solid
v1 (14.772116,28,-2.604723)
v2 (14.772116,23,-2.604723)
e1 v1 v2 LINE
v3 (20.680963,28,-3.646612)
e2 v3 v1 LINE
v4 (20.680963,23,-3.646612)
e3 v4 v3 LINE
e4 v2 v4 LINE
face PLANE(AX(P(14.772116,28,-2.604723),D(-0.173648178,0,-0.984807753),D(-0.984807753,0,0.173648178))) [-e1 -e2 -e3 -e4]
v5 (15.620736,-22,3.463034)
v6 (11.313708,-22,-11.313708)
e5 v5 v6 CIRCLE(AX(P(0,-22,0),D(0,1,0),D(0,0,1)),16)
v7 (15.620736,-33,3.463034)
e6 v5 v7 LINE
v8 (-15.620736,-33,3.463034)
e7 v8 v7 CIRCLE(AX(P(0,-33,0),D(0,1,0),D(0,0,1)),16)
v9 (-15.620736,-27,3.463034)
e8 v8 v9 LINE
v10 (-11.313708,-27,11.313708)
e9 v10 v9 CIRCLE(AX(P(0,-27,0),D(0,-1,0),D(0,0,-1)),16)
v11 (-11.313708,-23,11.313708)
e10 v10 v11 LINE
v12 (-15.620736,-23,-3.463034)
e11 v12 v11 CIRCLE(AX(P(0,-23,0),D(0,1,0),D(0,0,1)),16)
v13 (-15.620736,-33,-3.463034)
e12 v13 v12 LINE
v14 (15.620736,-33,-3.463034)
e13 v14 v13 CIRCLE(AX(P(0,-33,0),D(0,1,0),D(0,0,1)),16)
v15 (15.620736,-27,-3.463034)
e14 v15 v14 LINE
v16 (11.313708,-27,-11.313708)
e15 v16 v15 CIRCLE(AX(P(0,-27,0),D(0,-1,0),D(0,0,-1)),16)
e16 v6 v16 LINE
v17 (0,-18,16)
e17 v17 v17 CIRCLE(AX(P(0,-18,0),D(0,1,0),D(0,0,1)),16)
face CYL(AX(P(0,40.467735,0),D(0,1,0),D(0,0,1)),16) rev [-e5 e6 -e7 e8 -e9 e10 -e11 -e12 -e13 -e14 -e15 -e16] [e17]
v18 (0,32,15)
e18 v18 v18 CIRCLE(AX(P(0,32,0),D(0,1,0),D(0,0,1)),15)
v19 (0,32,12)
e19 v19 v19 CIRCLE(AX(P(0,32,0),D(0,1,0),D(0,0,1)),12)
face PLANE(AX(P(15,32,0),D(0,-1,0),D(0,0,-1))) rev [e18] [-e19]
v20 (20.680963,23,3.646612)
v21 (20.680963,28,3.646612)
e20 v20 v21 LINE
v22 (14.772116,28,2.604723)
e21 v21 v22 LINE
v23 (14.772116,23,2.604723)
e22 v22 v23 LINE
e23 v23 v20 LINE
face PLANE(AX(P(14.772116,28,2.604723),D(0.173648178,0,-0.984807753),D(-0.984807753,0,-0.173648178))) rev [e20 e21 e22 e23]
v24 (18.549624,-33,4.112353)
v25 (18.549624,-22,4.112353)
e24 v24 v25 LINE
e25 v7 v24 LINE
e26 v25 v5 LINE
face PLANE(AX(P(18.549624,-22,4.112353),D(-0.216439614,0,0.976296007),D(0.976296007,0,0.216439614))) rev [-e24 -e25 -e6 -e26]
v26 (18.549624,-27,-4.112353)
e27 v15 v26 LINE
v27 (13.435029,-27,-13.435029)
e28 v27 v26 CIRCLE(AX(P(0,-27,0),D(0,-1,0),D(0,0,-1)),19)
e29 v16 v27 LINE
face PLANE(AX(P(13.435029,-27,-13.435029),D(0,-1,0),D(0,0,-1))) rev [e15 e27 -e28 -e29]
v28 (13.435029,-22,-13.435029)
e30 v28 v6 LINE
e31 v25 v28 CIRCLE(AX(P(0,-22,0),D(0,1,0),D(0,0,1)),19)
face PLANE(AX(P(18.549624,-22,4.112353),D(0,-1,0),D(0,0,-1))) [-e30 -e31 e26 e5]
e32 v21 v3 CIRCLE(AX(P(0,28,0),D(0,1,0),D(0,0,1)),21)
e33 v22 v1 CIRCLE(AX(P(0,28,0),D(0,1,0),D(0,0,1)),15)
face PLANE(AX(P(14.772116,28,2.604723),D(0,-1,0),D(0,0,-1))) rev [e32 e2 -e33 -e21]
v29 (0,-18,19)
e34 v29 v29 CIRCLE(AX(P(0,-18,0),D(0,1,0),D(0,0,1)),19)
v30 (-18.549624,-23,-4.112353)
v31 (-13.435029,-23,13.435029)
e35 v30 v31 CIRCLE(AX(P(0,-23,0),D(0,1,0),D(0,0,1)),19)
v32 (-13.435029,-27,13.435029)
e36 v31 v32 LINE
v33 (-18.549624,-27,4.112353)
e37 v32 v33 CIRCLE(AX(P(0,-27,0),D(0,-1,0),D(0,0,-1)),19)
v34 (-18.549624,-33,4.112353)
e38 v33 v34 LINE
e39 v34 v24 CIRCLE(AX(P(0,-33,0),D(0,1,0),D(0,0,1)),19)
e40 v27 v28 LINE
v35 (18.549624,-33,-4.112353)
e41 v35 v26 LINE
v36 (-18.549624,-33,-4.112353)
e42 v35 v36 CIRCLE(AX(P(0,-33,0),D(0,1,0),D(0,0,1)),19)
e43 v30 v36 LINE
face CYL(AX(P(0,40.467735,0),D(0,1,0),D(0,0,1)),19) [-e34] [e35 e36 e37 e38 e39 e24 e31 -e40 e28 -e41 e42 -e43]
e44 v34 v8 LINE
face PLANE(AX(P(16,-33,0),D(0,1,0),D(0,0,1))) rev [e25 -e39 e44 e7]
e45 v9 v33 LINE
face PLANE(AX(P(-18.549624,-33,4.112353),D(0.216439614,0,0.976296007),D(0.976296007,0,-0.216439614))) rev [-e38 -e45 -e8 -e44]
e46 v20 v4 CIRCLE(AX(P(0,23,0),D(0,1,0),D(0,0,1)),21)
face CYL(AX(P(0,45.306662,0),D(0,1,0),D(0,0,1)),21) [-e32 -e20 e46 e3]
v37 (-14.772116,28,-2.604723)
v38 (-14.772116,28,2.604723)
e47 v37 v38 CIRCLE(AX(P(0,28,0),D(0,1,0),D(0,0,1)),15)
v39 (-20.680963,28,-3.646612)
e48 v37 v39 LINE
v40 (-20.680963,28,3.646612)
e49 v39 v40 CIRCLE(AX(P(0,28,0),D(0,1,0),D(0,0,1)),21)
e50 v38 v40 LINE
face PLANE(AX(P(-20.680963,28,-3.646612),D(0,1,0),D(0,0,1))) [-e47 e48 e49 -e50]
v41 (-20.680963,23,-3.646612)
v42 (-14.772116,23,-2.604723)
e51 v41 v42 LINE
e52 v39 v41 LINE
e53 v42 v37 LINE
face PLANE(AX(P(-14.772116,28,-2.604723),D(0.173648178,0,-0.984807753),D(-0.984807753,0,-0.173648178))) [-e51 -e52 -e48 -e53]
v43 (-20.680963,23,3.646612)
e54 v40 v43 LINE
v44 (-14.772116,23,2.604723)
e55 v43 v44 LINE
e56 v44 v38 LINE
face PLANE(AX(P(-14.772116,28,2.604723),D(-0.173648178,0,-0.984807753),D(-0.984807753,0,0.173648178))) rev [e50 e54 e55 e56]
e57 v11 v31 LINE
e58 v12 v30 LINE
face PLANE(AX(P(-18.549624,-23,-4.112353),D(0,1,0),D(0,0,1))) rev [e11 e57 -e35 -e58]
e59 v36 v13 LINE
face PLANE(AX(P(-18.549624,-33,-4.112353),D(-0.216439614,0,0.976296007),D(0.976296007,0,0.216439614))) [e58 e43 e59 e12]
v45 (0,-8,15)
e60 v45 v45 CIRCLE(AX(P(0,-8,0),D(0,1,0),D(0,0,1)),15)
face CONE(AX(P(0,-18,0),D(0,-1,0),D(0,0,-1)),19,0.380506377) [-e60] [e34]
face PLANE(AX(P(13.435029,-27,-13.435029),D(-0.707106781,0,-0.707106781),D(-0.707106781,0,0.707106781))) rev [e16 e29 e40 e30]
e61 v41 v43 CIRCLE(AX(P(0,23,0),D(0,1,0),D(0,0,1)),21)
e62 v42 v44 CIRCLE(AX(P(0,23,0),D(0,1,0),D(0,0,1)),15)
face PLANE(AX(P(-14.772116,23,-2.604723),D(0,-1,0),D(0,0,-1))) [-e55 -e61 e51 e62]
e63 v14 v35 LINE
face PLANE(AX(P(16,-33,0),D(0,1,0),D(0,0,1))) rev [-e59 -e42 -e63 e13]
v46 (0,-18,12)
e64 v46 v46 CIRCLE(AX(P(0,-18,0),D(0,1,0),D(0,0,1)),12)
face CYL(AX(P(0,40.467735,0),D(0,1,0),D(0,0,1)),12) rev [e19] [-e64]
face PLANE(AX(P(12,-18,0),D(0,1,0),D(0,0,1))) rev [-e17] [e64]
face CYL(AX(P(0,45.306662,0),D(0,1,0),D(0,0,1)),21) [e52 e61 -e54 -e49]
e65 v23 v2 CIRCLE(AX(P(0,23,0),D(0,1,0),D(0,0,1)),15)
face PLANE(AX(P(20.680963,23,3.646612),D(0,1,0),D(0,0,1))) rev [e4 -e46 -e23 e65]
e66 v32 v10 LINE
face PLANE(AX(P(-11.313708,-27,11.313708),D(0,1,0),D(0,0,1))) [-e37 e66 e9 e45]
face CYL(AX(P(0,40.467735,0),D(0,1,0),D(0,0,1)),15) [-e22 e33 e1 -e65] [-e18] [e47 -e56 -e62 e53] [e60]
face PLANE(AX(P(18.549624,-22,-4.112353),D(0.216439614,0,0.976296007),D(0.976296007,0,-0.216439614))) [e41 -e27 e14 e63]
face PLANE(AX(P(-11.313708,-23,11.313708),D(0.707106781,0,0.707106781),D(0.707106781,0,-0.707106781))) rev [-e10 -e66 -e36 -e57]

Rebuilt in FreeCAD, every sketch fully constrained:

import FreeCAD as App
import Part
import Sketcher

doc = App.newDocument("Part")
body = doc.addObject("PartDesign::Body", "Body")

# Sketch on XY plane
sketch1 = doc.addObject("Sketcher::SketchObject", "Sketch")
body.addObject(sketch1)
sketch1.AttachmentSupport = (doc.XY_Plane, [""])
sketch1.MapMode = "FlatFace"
sketch1.addGeometry([
    Part.LineSegment(App.Vector(12, 32, 0), App.Vector(12, -18, 0)),  # 0
    Part.LineSegment(App.Vector(12, -18, 0), App.Vector(16, -18, 0)),  # 1
    Part.LineSegment(App.Vector(16, -18, 0), App.Vector(16, -33, 0)),  # 2
    Part.LineSegment(App.Vector(16, -33, 0), App.Vector(19, -33, 0)),  # 3
    Part.LineSegment(App.Vector(19, -33, 0), App.Vector(19, -18, 0)),  # 4
    Part.LineSegment(App.Vector(19, -18, 0), App.Vector(15, -8, 0)),  # 5
    Part.LineSegment(App.Vector(15, -8, 0), App.Vector(15, 32, 0)),  # 6
    Part.LineSegment(App.Vector(15, 32, 0), App.Vector(12, 32, 0)),  # 7
], False)
sketch1.addConstraint([
    Sketcher.Constraint("Coincident", 0, 2, 1, 1),
    Sketcher.Constraint("Coincident", 1, 2, 2, 1),
    Sketcher.Constraint("Coincident", 2, 2, 3, 1),
    Sketcher.Constraint("Coincident", 3, 2, 4, 1),
    Sketcher.Constraint("Coincident", 4, 2, 5, 1),
    Sketcher.Constraint("Coincident", 5, 2, 6, 1),
    Sketcher.Constraint("Coincident", 6, 2, 7, 1),
    Sketcher.Constraint("Coincident", 7, 2, 0, 1),
    Sketcher.Constraint("Vertical", 0),
    Sketcher.Constraint("Horizontal", 1),
    Sketcher.Constraint("Vertical", 2),
    Sketcher.Constraint("Horizontal", 3),
    Sketcher.Constraint("Vertical", 4),
    Sketcher.Constraint("Vertical", 6),
    Sketcher.Constraint("Horizontal", 7),
    Sketcher.Constraint("Horizontal", 1, 2, 4, 2),
    Sketcher.Constraint("Equal", 3, 7),
    Sketcher.Constraint("DistanceX", 1, 1, 1, 2, 4.0),
    Sketcher.Constraint("DistanceX", 3, 1, 3, 2, 3.0),
    Sketcher.Constraint("DistanceY", 0, 2, 0, 1, 50.0),
    Sketcher.Constraint("DistanceY", 2, 2, 2, 1, 15.0),
    Sketcher.Constraint("DistanceY", 6, 1, 6, 2, 40.0),
    Sketcher.Constraint("DistanceX", -1, 1, 0, 2, 12.0),
    Sketcher.Constraint("DistanceY", 0, 2, -1, 1, 18.0),
])
revolution = doc.addObject("PartDesign::Revolution", "Revolution")
body.addObject(revolution)
revolution.Profile = sketch1
revolution.ReferenceAxis = (sketch1, ["V_Axis"])
revolution.Angle = 360

# Sketch on XY plane
sketch2 = doc.addObject("Sketcher::SketchObject", "Sketch001")
body.addObject(sketch2)
sketch2.AttachmentSupport = (doc.XY_Plane, [""])
sketch2.MapMode = "FlatFace"
sketch2.addGeometry([
    Part.LineSegment(App.Vector(15, 28, 0), App.Vector(15, 23, 0)),  # 0
    Part.LineSegment(App.Vector(15, 23, 0), App.Vector(21, 23, 0)),  # 1
    Part.LineSegment(App.Vector(21, 23, 0), App.Vector(21, 28, 0)),  # 2
    Part.LineSegment(App.Vector(21, 28, 0), App.Vector(15, 28, 0)),  # 3
    Part.LineSegment(App.Vector(-21, 28, 0), App.Vector(-21, 23, 0)),  # 4
    Part.LineSegment(App.Vector(-21, 23, 0), App.Vector(-15, 23, 0)),  # 5
    Part.LineSegment(App.Vector(-15, 23, 0), App.Vector(-15, 28, 0)),  # 6
    Part.LineSegment(App.Vector(-15, 28, 0), App.Vector(-21, 28, 0)),  # 7
], False)
sketch2.addConstraint([
    Sketcher.Constraint("Coincident", 0, 2, 1, 1),
    Sketcher.Constraint("Coincident", 1, 2, 2, 1),
    Sketcher.Constraint("Coincident", 2, 2, 3, 1),
    Sketcher.Constraint("Coincident", 3, 2, 0, 1),
    Sketcher.Constraint("Coincident", 4, 2, 5, 1),
    Sketcher.Constraint("Coincident", 5, 2, 6, 1),
    Sketcher.Constraint("Coincident", 6, 2, 7, 1),
    Sketcher.Constraint("Coincident", 7, 2, 4, 1),
    Sketcher.Constraint("Vertical", 0),
    Sketcher.Constraint("Horizontal", 1),
    Sketcher.Constraint("Vertical", 2),
    Sketcher.Constraint("Horizontal", 3),
    Sketcher.Constraint("Vertical", 4),
    Sketcher.Constraint("Horizontal", 5),
    Sketcher.Constraint("Vertical", 6),
    Sketcher.Constraint("Horizontal", 7),
    Sketcher.Constraint("Symmetric", 1, 2, 4, 2, -2),
    Sketcher.Constraint("Symmetric", 3, 2, 6, 2, -2),
    Sketcher.Constraint("DistanceX", 1, 1, 1, 2, 6.0),
    Sketcher.Constraint("DistanceY", 0, 2, 0, 1, 5.0),
    Sketcher.Constraint("DistanceX", -1, 1, 0, 2, 15.0),
    Sketcher.Constraint("DistanceY", -1, 1, 0, 2, 23.0),
])
revolution2 = doc.addObject("PartDesign::Revolution", "Revolution001")
body.addObject(revolution2)
revolution2.Profile = sketch2
revolution2.ReferenceAxis = (sketch2, ["V_Axis"])
revolution2.Angle = 10
revolution2.Reversed = True

# Sketch on XY plane
sketch3 = doc.addObject("Sketcher::SketchObject", "Sketch002")
body.addObject(sketch3)
sketch3.AttachmentSupport = (doc.XY_Plane, [""])
sketch3.MapMode = "FlatFace"
sketch3.addGeometry([
    Part.LineSegment(App.Vector(15, 28, 0), App.Vector(15, 23, 0)),  # 0
    Part.LineSegment(App.Vector(15, 23, 0), App.Vector(21, 23, 0)),  # 1
    Part.LineSegment(App.Vector(21, 23, 0), App.Vector(21, 28, 0)),  # 2
    Part.LineSegment(App.Vector(21, 28, 0), App.Vector(15, 28, 0)),  # 3
    Part.LineSegment(App.Vector(-21, 28, 0), App.Vector(-21, 23, 0)),  # 4
    Part.LineSegment(App.Vector(-21, 23, 0), App.Vector(-15, 23, 0)),  # 5
    Part.LineSegment(App.Vector(-15, 23, 0), App.Vector(-15, 28, 0)),  # 6
    Part.LineSegment(App.Vector(-15, 28, 0), App.Vector(-21, 28, 0)),  # 7
], False)
sketch3.addConstraint([
    Sketcher.Constraint("Coincident", 0, 2, 1, 1),
    Sketcher.Constraint("Coincident", 1, 2, 2, 1),
    Sketcher.Constraint("Coincident", 2, 2, 3, 1),
    Sketcher.Constraint("Coincident", 3, 2, 0, 1),
    Sketcher.Constraint("Coincident", 4, 2, 5, 1),
    Sketcher.Constraint("Coincident", 5, 2, 6, 1),
    Sketcher.Constraint("Coincident", 6, 2, 7, 1),
    Sketcher.Constraint("Coincident", 7, 2, 4, 1),
    Sketcher.Constraint("Vertical", 0),
    Sketcher.Constraint("Horizontal", 1),
    Sketcher.Constraint("Vertical", 2),
    Sketcher.Constraint("Horizontal", 3),
    Sketcher.Constraint("Vertical", 4),
    Sketcher.Constraint("Horizontal", 5),
    Sketcher.Constraint("Vertical", 6),
    Sketcher.Constraint("Horizontal", 7),
    Sketcher.Constraint("Symmetric", 1, 2, 4, 2, -2),
    Sketcher.Constraint("Symmetric", 3, 2, 6, 2, -2),
    Sketcher.Constraint("DistanceX", 1, 1, 1, 2, 6.0),
    Sketcher.Constraint("DistanceY", 0, 2, 0, 1, 5.0),
    Sketcher.Constraint("DistanceX", -1, 1, 0, 2, 15.0),
    Sketcher.Constraint("DistanceY", -1, 1, 0, 2, 23.0),
])
revolution3 = doc.addObject("PartDesign::Revolution", "Revolution002")
body.addObject(revolution3)
revolution3.Profile = sketch3
revolution3.ReferenceAxis = (sketch3, ["V_Axis"])
revolution3.Angle = 10

# Sketch on XY plane
sketch4 = doc.addObject("Sketcher::SketchObject", "Sketch003")
body.addObject(sketch4)
sketch4.AttachmentSupport = (doc.XY_Plane, [""])
sketch4.MapMode = "FlatFace"
sketch4.addGeometry([
    Part.LineSegment(App.Vector(-19, -23, 0), App.Vector(-19, -33, 0)),  # 0
    Part.LineSegment(App.Vector(-19, -33, 0), App.Vector(-16, -33, 0)),  # 1
    Part.LineSegment(App.Vector(-16, -33, 0), App.Vector(-16, -23, 0)),  # 2
    Part.LineSegment(App.Vector(-16, -23, 0), App.Vector(-19, -23, 0)),  # 3
    Part.LineSegment(App.Vector(16, -22, 0), App.Vector(16, -33, 0)),  # 4
    Part.LineSegment(App.Vector(16, -33, 0), App.Vector(19, -33, 0)),  # 5
    Part.LineSegment(App.Vector(19, -33, 0), App.Vector(19, -22, 0)),  # 6
    Part.LineSegment(App.Vector(19, -22, 0), App.Vector(16, -22, 0)),  # 7
], False)
sketch4.addConstraint([
    Sketcher.Constraint("Coincident", 0, 2, 1, 1),
    Sketcher.Constraint("Coincident", 1, 2, 2, 1),
    Sketcher.Constraint("Coincident", 2, 2, 3, 1),
    Sketcher.Constraint("Coincident", 3, 2, 0, 1),
    Sketcher.Constraint("Coincident", 4, 2, 5, 1),
    Sketcher.Constraint("Coincident", 5, 2, 6, 1),
    Sketcher.Constraint("Coincident", 6, 2, 7, 1),
    Sketcher.Constraint("Coincident", 7, 2, 4, 1),
    Sketcher.Constraint("Vertical", 0),
    Sketcher.Constraint("Horizontal", 1),
    Sketcher.Constraint("Vertical", 2),
    Sketcher.Constraint("Horizontal", 3),
    Sketcher.Constraint("Vertical", 4),
    Sketcher.Constraint("Horizontal", 5),
    Sketcher.Constraint("Vertical", 6),
    Sketcher.Constraint("Horizontal", 7),
    Sketcher.Constraint("Symmetric", 1, 2, 4, 2, -2),
    Sketcher.Constraint("Equal", 3, 5),
    Sketcher.Constraint("DistanceX", 1, 1, 1, 2, 3.0),
    Sketcher.Constraint("DistanceY", 0, 2, 0, 1, 10.0),
    Sketcher.Constraint("DistanceY", 4, 2, 4, 1, 11.0),
    Sketcher.Constraint("DistanceX", 0, 2, -1, 1, 19.0),
    Sketcher.Constraint("DistanceY", 0, 2, -1, 1, 33.0),
])
groove = doc.addObject("PartDesign::Groove", "Groove")
body.addObject(groove)
groove.Profile = sketch4
groove.ReferenceAxis = (sketch4, ["V_Axis"])
groove.Angle = 12.5
groove.Reversed = True

# Sketch on XY plane
sketch5 = doc.addObject("Sketcher::SketchObject", "Sketch004")
body.addObject(sketch5)
sketch5.AttachmentSupport = (doc.XY_Plane, [""])
sketch5.MapMode = "FlatFace"
sketch5.addGeometry([
    Part.LineSegment(App.Vector(-19, -23, 0), App.Vector(-19, -33, 0)),  # 0
    Part.LineSegment(App.Vector(-19, -33, 0), App.Vector(-16, -33, 0)),  # 1
    Part.LineSegment(App.Vector(-16, -33, 0), App.Vector(-16, -23, 0)),  # 2
    Part.LineSegment(App.Vector(-16, -23, 0), App.Vector(-19, -23, 0)),  # 3
    Part.LineSegment(App.Vector(16, -22, 0), App.Vector(16, -33, 0)),  # 4
    Part.LineSegment(App.Vector(16, -33, 0), App.Vector(19, -33, 0)),  # 5
    Part.LineSegment(App.Vector(19, -33, 0), App.Vector(19, -22, 0)),  # 6
    Part.LineSegment(App.Vector(19, -22, 0), App.Vector(16, -22, 0)),  # 7
], False)
sketch5.addConstraint([
    Sketcher.Constraint("Coincident", 0, 2, 1, 1),
    Sketcher.Constraint("Coincident", 1, 2, 2, 1),
    Sketcher.Constraint("Coincident", 2, 2, 3, 1),
    Sketcher.Constraint("Coincident", 3, 2, 0, 1),
    Sketcher.Constraint("Coincident", 4, 2, 5, 1),
    Sketcher.Constraint("Coincident", 5, 2, 6, 1),
    Sketcher.Constraint("Coincident", 6, 2, 7, 1),
    Sketcher.Constraint("Coincident", 7, 2, 4, 1),
    Sketcher.Constraint("Vertical", 0),
    Sketcher.Constraint("Horizontal", 1),
    Sketcher.Constraint("Vertical", 2),
    Sketcher.Constraint("Horizontal", 3),
    Sketcher.Constraint("Vertical", 4),
    Sketcher.Constraint("Horizontal", 5),
    Sketcher.Constraint("Vertical", 6),
    Sketcher.Constraint("Horizontal", 7),
    Sketcher.Constraint("Symmetric", 1, 2, 4, 2, -2),
    Sketcher.Constraint("Equal", 3, 5),
    Sketcher.Constraint("DistanceX", 1, 1, 1, 2, 3.0),
    Sketcher.Constraint("DistanceY", 0, 2, 0, 1, 10.0),
    Sketcher.Constraint("DistanceY", 4, 2, 4, 1, 11.0),
    Sketcher.Constraint("DistanceX", 0, 2, -1, 1, 19.0),
    Sketcher.Constraint("DistanceY", 0, 2, -1, 1, 33.0),
])
groove2 = doc.addObject("PartDesign::Groove", "Groove001")
body.addObject(groove2)
groove2.Profile = sketch5
groove2.ReferenceAxis = (sketch5, ["V_Axis"])
groove2.Angle = 12.5

# Sketch on XY plane
sketch6 = doc.addObject("Sketcher::SketchObject", "Sketch005")
body.addObject(sketch6)
sketch6.AttachmentSupport = (doc.XY_Plane, [""])
sketch6.MapMode = "FlatFace"
sketch6.addGeometry([
    Part.LineSegment(App.Vector(16, -22, 0), App.Vector(16, -27, 0)),  # 0
    Part.LineSegment(App.Vector(16, -27, 0), App.Vector(19, -27, 0)),  # 1
    Part.LineSegment(App.Vector(19, -27, 0), App.Vector(19, -22, 0)),  # 2
    Part.LineSegment(App.Vector(19, -22, 0), App.Vector(16, -22, 0)),  # 3
    Part.LineSegment(App.Vector(-19, -23, 0), App.Vector(-19, -27, 0)),  # 4
    Part.LineSegment(App.Vector(-19, -27, 0), App.Vector(-16, -27, 0)),  # 5
    Part.LineSegment(App.Vector(-16, -27, 0), App.Vector(-16, -23, 0)),  # 6
    Part.LineSegment(App.Vector(-16, -23, 0), App.Vector(-19, -23, 0)),  # 7
], False)
sketch6.addConstraint([
    Sketcher.Constraint("Coincident", 0, 2, 1, 1),
    Sketcher.Constraint("Coincident", 1, 2, 2, 1),
    Sketcher.Constraint("Coincident", 2, 2, 3, 1),
    Sketcher.Constraint("Coincident", 3, 2, 0, 1),
    Sketcher.Constraint("Coincident", 4, 2, 5, 1),
    Sketcher.Constraint("Coincident", 5, 2, 6, 1),
    Sketcher.Constraint("Coincident", 6, 2, 7, 1),
    Sketcher.Constraint("Coincident", 7, 2, 4, 1),
    Sketcher.Constraint("Vertical", 0),
    Sketcher.Constraint("Horizontal", 1),
    Sketcher.Constraint("Vertical", 2),
    Sketcher.Constraint("Horizontal", 3),
    Sketcher.Constraint("Vertical", 4),
    Sketcher.Constraint("Horizontal", 5),
    Sketcher.Constraint("Vertical", 6),
    Sketcher.Constraint("Horizontal", 7),
    Sketcher.Constraint("Symmetric", 1, 2, 4, 2, -2),
    Sketcher.Constraint("Equal", 3, 5),
    Sketcher.Constraint("DistanceX", 1, 1, 1, 2, 3.0),
    Sketcher.Constraint("DistanceY", 0, 2, 0, 1, 5.0),
    Sketcher.Constraint("DistanceY", 4, 2, 4, 1, 4.0),
    Sketcher.Constraint("DistanceX", -1, 1, 0, 2, 16.0),
    Sketcher.Constraint("DistanceY", 0, 2, -1, 1, 27.0),
])
groove3 = doc.addObject("PartDesign::Groove", "Groove002")
body.addObject(groove3)
groove3.Profile = sketch6
groove3.ReferenceAxis = (sketch6, ["V_Axis"])
groove3.Angle = 45

doc.recompute()
